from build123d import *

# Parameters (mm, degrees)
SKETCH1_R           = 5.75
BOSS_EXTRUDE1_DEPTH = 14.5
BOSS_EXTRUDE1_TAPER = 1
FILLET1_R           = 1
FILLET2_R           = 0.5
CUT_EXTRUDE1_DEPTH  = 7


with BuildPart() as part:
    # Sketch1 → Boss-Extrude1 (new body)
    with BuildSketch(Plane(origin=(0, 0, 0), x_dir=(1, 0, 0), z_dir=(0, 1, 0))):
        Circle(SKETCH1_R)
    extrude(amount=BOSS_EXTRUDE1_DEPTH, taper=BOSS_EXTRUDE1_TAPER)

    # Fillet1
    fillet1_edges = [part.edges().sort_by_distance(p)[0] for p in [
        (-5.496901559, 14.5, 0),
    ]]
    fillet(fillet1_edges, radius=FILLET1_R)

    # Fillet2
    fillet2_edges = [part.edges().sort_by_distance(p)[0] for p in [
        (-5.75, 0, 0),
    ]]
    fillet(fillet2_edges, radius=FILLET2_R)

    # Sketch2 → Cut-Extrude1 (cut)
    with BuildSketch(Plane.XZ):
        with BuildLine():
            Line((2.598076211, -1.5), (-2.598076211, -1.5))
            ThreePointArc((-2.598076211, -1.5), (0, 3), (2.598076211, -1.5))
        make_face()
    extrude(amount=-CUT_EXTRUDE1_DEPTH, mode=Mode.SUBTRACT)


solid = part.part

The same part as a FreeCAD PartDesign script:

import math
import FreeCAD as App
import Part
import Sketcher

V = App.Vector


def edges_at(feature, points):
    """Names of the edges that pass closest to the given points."""
    edges = feature.Shape.Edges
    near = lambda p: min(range(len(edges)), key=lambda i: edges[i].distToShape(Part.Vertex(*p))[0])
    return sorted({f"Edge{near(p) + 1}" for p in points})

doc = App.newDocument("Part")
body = doc.addObject("PartDesign::Body", "Body")

# Sketch on XZ plane
sketch1 = body.newObject("Sketcher::SketchObject", "Sketch")
sketch1.AttachmentSupport = (doc.getObject("XZ_Plane"), [""])
sketch1.MapMode = "FlatFace"
sketch1.addGeometry(Part.Circle(V(0, 0, 0), V(0, 0, 1), 6), False)
sketch1.addConstraint(Sketcher.Constraint("Coincident", 0, 3, -1, 1))
sketch1.addConstraint(Sketcher.Constraint("Diameter", 0, 11.5))
pad1 = body.newObject("PartDesign::Pad", "Pad")
pad1.Profile = sketch1
pad1.Length = 14.5
pad1.Reversed = True
pad1.TaperAngle = -1
doc.recompute()

fillet = body.newObject("PartDesign::Fillet", "Fillet")
fillet.Base = (pad1, edges_at(pad1, [(-5.497, 14.5, 0)]))
fillet.Radius = 1
doc.recompute()

fillet2 = body.newObject("PartDesign::Fillet", "Fillet001")
fillet2.Base = (fillet, edges_at(fillet, [(-5.75, 0, 0)]))
fillet2.Radius = 0.5

# Sketch on XZ plane
sketch2 = body.newObject("Sketcher::SketchObject", "Sketch001")
sketch2.AttachmentSupport = (doc.getObject("XZ_Plane"), [""])
sketch2.MapMode = "FlatFace"
sketch2.addGeometry(Part.LineSegment(V(-2.6, -1.5, 0), V(2.6, -1.5, 0)), False)
sketch2.addGeometry(Part.ArcOfCircle(Part.Circle(V(0, 0, 0), V(0, 0, 1), 3), math.radians(-30), math.radians(210)), False)
sketch2.addConstraint(Sketcher.Constraint("Coincident", 0, 1, 1, 2))
sketch2.addConstraint(Sketcher.Constraint("Coincident", 1, 1, 0, 2))
sketch2.addConstraint(Sketcher.Constraint("Horizontal", 0))
sketch2.addConstraint(Sketcher.Constraint("Coincident", 1, 3, -1, 1))
sketch2.addConstraint(Sketcher.Constraint("Radius", 1, 3.0))
sketch2.addConstraint(Sketcher.Constraint("DistanceY", 0, 1, -1, 1, 1.5))
pocket1 = body.newObject("PartDesign::Pocket", "Pocket")
pocket1.Profile = sketch2
pocket1.Length = 7

doc.recompute()
